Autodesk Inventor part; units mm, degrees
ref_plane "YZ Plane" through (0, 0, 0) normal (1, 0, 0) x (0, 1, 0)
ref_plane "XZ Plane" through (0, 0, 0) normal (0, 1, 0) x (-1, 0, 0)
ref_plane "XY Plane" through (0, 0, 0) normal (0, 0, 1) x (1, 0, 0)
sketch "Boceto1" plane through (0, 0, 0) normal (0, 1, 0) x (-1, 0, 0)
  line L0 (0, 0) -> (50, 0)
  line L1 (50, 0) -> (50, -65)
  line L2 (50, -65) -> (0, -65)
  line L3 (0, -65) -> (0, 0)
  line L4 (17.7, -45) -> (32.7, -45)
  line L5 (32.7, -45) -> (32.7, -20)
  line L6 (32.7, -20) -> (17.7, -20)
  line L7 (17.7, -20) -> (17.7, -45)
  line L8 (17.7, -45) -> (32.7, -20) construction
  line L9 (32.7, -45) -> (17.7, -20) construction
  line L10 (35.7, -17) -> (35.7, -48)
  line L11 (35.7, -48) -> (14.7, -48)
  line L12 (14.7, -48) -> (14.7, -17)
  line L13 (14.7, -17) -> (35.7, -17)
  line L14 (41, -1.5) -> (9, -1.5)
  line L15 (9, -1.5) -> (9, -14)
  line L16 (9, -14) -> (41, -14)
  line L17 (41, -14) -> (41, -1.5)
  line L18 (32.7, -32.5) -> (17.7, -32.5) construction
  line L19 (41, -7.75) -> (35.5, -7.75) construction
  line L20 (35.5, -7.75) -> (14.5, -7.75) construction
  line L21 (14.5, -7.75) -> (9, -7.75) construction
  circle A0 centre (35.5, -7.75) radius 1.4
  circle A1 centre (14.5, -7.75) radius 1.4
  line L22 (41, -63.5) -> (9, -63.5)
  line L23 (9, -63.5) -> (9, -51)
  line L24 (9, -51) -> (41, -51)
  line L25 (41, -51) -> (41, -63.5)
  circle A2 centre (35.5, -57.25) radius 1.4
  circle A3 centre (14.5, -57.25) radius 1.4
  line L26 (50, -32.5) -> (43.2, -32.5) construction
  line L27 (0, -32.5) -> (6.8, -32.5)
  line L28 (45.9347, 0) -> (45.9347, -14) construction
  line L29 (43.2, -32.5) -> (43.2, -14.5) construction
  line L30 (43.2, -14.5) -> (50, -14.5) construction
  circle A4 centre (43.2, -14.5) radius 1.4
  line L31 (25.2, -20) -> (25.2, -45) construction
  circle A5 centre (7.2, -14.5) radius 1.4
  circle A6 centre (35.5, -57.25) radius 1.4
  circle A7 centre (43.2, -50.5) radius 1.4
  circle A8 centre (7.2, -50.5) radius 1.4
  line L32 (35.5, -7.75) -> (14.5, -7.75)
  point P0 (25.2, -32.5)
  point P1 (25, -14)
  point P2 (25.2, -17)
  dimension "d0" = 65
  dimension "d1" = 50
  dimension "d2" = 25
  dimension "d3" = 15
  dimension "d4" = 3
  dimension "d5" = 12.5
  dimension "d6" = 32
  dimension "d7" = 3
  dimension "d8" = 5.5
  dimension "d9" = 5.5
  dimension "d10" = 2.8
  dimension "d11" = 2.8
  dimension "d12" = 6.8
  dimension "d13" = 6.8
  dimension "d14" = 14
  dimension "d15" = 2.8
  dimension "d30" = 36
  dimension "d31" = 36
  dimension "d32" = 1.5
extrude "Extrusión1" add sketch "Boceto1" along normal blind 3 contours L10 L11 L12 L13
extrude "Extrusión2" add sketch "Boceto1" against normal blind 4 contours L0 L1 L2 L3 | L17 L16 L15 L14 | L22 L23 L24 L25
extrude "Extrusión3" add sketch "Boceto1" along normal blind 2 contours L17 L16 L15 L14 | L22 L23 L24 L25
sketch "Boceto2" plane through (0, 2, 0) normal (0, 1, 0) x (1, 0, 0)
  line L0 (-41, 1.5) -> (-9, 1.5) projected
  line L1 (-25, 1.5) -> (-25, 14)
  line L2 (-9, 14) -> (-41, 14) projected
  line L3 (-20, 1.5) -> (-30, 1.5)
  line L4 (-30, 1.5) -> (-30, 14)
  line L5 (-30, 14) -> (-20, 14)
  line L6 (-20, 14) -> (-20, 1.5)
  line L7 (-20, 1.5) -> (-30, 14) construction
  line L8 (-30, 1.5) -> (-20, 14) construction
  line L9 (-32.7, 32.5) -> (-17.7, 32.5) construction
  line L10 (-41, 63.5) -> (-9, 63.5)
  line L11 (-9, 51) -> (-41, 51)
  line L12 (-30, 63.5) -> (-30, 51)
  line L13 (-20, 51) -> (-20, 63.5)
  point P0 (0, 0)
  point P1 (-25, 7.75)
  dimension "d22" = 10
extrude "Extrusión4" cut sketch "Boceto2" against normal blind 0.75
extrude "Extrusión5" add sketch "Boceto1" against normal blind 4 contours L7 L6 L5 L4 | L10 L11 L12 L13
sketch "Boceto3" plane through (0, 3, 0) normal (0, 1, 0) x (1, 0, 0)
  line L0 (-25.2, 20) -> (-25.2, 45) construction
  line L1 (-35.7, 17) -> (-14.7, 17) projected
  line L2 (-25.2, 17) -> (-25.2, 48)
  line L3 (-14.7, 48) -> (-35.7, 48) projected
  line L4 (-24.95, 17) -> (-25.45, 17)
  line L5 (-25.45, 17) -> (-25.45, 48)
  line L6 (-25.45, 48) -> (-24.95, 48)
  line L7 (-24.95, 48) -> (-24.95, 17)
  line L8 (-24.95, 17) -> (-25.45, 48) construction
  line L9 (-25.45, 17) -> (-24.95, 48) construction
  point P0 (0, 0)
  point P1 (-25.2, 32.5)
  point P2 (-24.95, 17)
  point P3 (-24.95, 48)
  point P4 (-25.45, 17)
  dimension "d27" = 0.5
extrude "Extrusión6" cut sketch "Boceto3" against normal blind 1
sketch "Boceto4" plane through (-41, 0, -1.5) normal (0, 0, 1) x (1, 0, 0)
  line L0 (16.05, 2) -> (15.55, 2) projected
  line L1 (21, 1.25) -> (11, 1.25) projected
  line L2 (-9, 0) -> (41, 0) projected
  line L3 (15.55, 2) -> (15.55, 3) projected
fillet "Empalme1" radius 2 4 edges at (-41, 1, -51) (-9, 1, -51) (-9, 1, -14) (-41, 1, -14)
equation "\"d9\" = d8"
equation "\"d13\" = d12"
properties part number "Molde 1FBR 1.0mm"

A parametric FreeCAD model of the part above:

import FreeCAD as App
import Part
import Sketcher
Q = App.Units.Quantity


def edges_at(feature, points):
    """Names of the edges that pass closest to the given points."""
    edges = feature.Shape.Edges
    near = lambda p: min(range(len(edges)), key=lambda i: edges[i].distToShape(Part.Vertex(*p))[0])
    return sorted({f"Edge{near(p) + 1}" for p in points})

doc = App.newDocument("Part")
body = doc.addObject("PartDesign::Body", "Body")
body.AllowCompound = True

sketch1 = body.newObject("Sketcher::SketchObject", "Sketch")
sketch1.AttachmentSupport = (doc.getObject("XZ_Plane"), [""])
sketch1.MapMode = "FlatFace"
sketch1.addGeometry([
    Part.LineSegment(App.Vector(-35.7, -48, 0), App.Vector(-35.7, -17, 0)),
    Part.LineSegment(App.Vector(-35.7, -17, 0), App.Vector(-14.7, -17, 0)),
    Part.LineSegment(App.Vector(-14.7, -17, 0), App.Vector(-14.7, -48, 0)),
    Part.LineSegment(App.Vector(-14.7, -48, 0), App.Vector(-35.7, -48, 0)),
    Part.LineSegment(App.Vector(-32.7, -45, 0), App.Vector(-17.7, -45, 0)),
    Part.LineSegment(App.Vector(-17.7, -45, 0), App.Vector(-17.7, -20, 0)),
    Part.LineSegment(App.Vector(-17.7, -20, 0), App.Vector(-32.7, -20, 0)),
    Part.LineSegment(App.Vector(-32.7, -20, 0), App.Vector(-32.7, -45, 0)),
], False)
sketch1.addConstraint([
    Sketcher.Constraint("Coincident", 0, 2, 1, 1),
    Sketcher.Constraint("Coincident", 1, 2, 2, 1),
    Sketcher.Constraint("Coincident", 2, 2, 3, 1),
    Sketcher.Constraint("Coincident", 3, 2, 0, 1),
    Sketcher.Constraint("Coincident", 4, 2, 5, 1),
    Sketcher.Constraint("Coincident", 5, 2, 6, 1),
    Sketcher.Constraint("Coincident", 6, 2, 7, 1),
    Sketcher.Constraint("Coincident", 7, 2, 4, 1),
    Sketcher.Constraint("Vertical", 0),
    Sketcher.Constraint("Horizontal", 1),
    Sketcher.Constraint("Vertical", 2),
    Sketcher.Constraint("Horizontal", 3),
    Sketcher.Constraint("Horizontal", 4),
    Sketcher.Constraint("Vertical", 5),
    Sketcher.Constraint("Horizontal", 6),
    Sketcher.Constraint("Vertical", 7),
    Sketcher.Constraint("DistanceX", 4, 1, 4, 2, Q("15 mm")),
    Sketcher.Constraint("DistanceY", 5, 1, 5, 2, Q("25 mm")),
    Sketcher.Constraint("DistanceX", 4, 2, 2, 2, Q("3 mm")),
    Sketcher.Constraint("DistanceY", 2, 2, 4, 2, Q("3 mm")),
    Sketcher.Constraint("DistanceY", 5, 2, 1, 2, Q("3 mm")),
    Sketcher.Constraint("DistanceX", 0, 2, 6, 2, Q("3 mm")),
    Sketcher.Constraint("DistanceY", 0, 2, -1, 1, Q("17 mm")),
    Sketcher.Constraint("DistanceX", 0, 2, -1, 1, Q("35.7 mm")),
])
pad1 = body.newObject("PartDesign::Pad", "Pad")
pad1.Profile = sketch1
pad1.Length = 3
pad1.Reversed = True

sketch2 = body.newObject("Sketcher::SketchObject", "Sketch001")
sketch2.AttachmentSupport = (doc.getObject("XZ_Plane"), [""])
sketch2.MapMode = "FlatFace"
sketch2.addGeometry([
    Part.LineSegment(App.Vector(-50, 0, 0), App.Vector(0, 0, 0)),
    Part.LineSegment(App.Vector(0, 0, 0), App.Vector(0, -65, 0)),
    Part.LineSegment(App.Vector(0, -65, 0), App.Vector(-50, -65, 0)),
    Part.LineSegment(App.Vector(-50, -65, 0), App.Vector(-50, 0, 0)),
    Part.Circle(App.Vector(-7.2, -50.5, 0), App.Vector(0, 0, 1), 1.4),
    Part.Circle(App.Vector(-43.2, -50.5, 0), App.Vector(0, 0, 1), 1.4),
    Part.Circle(App.Vector(-7.2, -14.5, 0), App.Vector(0, 0, 1), 1.4),
    Part.LineSegment(App.Vector(-14.7, -17, 0), App.Vector(-35.7, -17, 0)),
    Part.LineSegment(App.Vector(-35.7, -17, 0), App.Vector(-35.7, -48, 0)),
    Part.LineSegment(App.Vector(-35.7, -48, 0), App.Vector(-14.7, -48, 0)),
    Part.LineSegment(App.Vector(-14.7, -48, 0), App.Vector(-14.7, -17, 0)),
    Part.Circle(App.Vector(-43.2, -14.5, 0), App.Vector(0, 0, 1), 1.4),
    Part.Circle(App.Vector(-14.5, -57.25, 0), App.Vector(0, 0, 1), 1.4),
    Part.Circle(App.Vector(-35.5, -57.25, 0), App.Vector(0, 0, 1), 1.4),
    Part.Circle(App.Vector(-14.5, -7.75, 0), App.Vector(0, 0, 1), 1.4),
    Part.Circle(App.Vector(-35.5, -7.75, 0), App.Vector(0, 0, 1), 1.4),
], False)
sketch2.addConstraint([
    Sketcher.Constraint("Coincident", 0, 2, 1, 1),
    Sketcher.Constraint("Coincident", 1, 2, 2, 1),
    Sketcher.Constraint("Coincident", 2, 2, 3, 1),
    Sketcher.Constraint("Coincident", 3, 2, 0, 1),
    Sketcher.Constraint("Coincident", 7, 2, 8, 1),
    Sketcher.Constraint("Coincident", 8, 2, 9, 1),
    Sketcher.Constraint("Coincident", 9, 2, 10, 1),
    Sketcher.Constraint("Coincident", 10, 2, 7, 1),
    Sketcher.Constraint("Horizontal", 0),
    Sketcher.Constraint("Vertical", 1),
    Sketcher.Constraint("Horizontal", 2),
    Sketcher.Constraint("Vertical", 3),
    Sketcher.Constraint("Horizontal", 7),
    Sketcher.Constraint("Vertical", 8),
    Sketcher.Constraint("Horizontal", 9),
    Sketcher.Constraint("Vertical", 10),
    Sketcher.Constraint("Coincident", 0, 2, -1, 1),
    Sketcher.Constraint("Equal", 4, 5),
    Sketcher.Constraint("Equal", 5, 6),
    Sketcher.Constraint("Equal", 6, 11),
    Sketcher.Constraint("Equal", 11, 12),
    Sketcher.Constraint("Equal", 12, 13),
    Sketcher.Constraint("Equal", 13, 14),
    Sketcher.Constraint("Equal", 14, 15),
    Sketcher.Constraint("Horizontal", 4, 3, 5, 3),
    Sketcher.Constraint("Horizontal", 6, 3, 11, 3),
    Sketcher.Constraint("Horizontal", 12, 3, 13, 3),
    Sketcher.Constraint("Horizontal", 14, 3, 15, 3),
    Sketcher.Constraint("Vertical", 4, 3, 6, 3),
    Sketcher.Constraint("Vertical", 5, 3, 11, 3),
    Sketcher.Constraint("Vertical", 12, 3, 14, 3),
    Sketcher.Constraint("Vertical", 13, 3, 15, 3),
    Sketcher.Constraint("Diameter", 4, Q("2.8 mm")),
    Sketcher.Constraint("DistanceX", 0, 1, 0, 2, Q("50 mm")),
    Sketcher.Constraint("DistanceY", 1, 2, 1, 1, Q("65 mm")),
    Sketcher.Constraint("DistanceX", 5, 3, 4, 3, Q("36 mm")),
    Sketcher.Constraint("DistanceY", 4, 3, 6, 3, Q("36 mm")),
    Sketcher.Constraint("DistanceX", 2, 2, 5, 3, Q("6.8 mm")),
    Sketcher.Constraint("DistanceX", 7, 2, 7, 1, Q("21 mm")),
    Sketcher.Constraint("DistanceY", 8, 2, 8, 1, Q("31 mm")),
    Sketcher.Constraint("DistanceY", 7, 2, -1, 1, Q("17 mm")),
    Sketcher.Constraint("DistanceX", 13, 3, 12, 3, Q("21 mm")),
    Sketcher.Constraint("DistanceY", 4, 3, -1, 1, Q("50.5 mm")),
    Sketcher.Constraint("DistanceX", 12, 3, -1, 1, Q("14.5 mm")),
    Sketcher.Constraint("DistanceX", 7, 2, -1, 1, Q("35.7 mm")),
    Sketcher.Constraint("DistanceY", 12, 3, 14, 3, Q("49.5 mm")),
    Sketcher.Constraint("DistanceY", 12, 3, -1, 1, Q("57.25 mm")),
])
pad2 = body.newObject("PartDesign::Pad", "Pad001")
pad2.Profile = sketch2
pad2.Length = 4

sketch3 = body.newObject("Sketcher::SketchObject", "Sketch002")
sketch3.AttachmentSupport = (doc.getObject("XZ_Plane"), [""])
sketch3.MapMode = "FlatFace"
sketch3.addGeometry([
    Part.LineSegment(App.Vector(-41, -14, 0), App.Vector(-41, -1.5, 0)),
    Part.LineSegment(App.Vector(-41, -1.5, 0), App.Vector(-9, -1.5, 0)),
    Part.LineSegment(App.Vector(-9, -1.5, 0), App.Vector(-9, -14, 0)),
    Part.LineSegment(App.Vector(-9, -14, 0), App.Vector(-41, -14, 0)),
    Part.Circle(App.Vector(-14.5, -7.75, 0), App.Vector(0, 0, 1), 1.4),
    Part.Circle(App.Vector(-35.5, -7.75, 0), App.Vector(0, 0, 1), 1.4),
    Part.LineSegment(App.Vector(-9, -63.5, 0), App.Vector(-41, -63.5, 0)),
    Part.LineSegment(App.Vector(-41, -63.5, 0), App.Vector(-41, -51, 0)),
    Part.LineSegment(App.Vector(-41, -51, 0), App.Vector(-9, -51, 0)),
    Part.LineSegment(App.Vector(-9, -51, 0), App.Vector(-9, -63.5, 0)),
    Part.Circle(App.Vector(-14.5, -57.25, 0), App.Vector(0, 0, 1), 1.4),
    Part.Circle(App.Vector(-35.5, -57.25, 0), App.Vector(0, 0, 1), 1.4),
], False)
sketch3.addConstraint([
    Sketcher.Constraint("Coincident", 0, 2, 1, 1),
    Sketcher.Constraint("Coincident", 1, 2, 2, 1),
    Sketcher.Constraint("Coincident", 2, 2, 3, 1),
    Sketcher.Constraint("Coincident", 3, 2, 0, 1),
    Sketcher.Constraint("Coincident", 6, 2, 7, 1),
    Sketcher.Constraint("Coincident", 7, 2, 8, 1),
    Sketcher.Constraint("Coincident", 8, 2, 9, 1),
    Sketcher.Constraint("Coincident", 9, 2, 6, 1),
    Sketcher.Constraint("Vertical", 0),
    Sketcher.Constraint("Horizontal", 1),
    Sketcher.Constraint("Vertical", 2),
    Sketcher.Constraint("Horizontal", 3),
    Sketcher.Constraint("Horizontal", 6),
    Sketcher.Constraint("Vertical", 7),
    Sketcher.Constraint("Horizontal", 8),
    Sketcher.Constraint("Vertical", 9),
    Sketcher.Constraint("Equal", 4, 5),
    Sketcher.Constraint("Equal", 5, 10),
    Sketcher.Constraint("Equal", 10, 11),
    Sketcher.Constraint("Horizontal", 4, 3, 5, 3),
    Sketcher.Constraint("Horizontal", 10, 3, 11, 3),
    Sketcher.Constraint("Vertical", 4, 3, 10, 3),
    Sketcher.Constraint("Vertical", 5, 3, 11, 3),
    Sketcher.Constraint("Vertical", 3, 2, 6, 2),
    Sketcher.Constraint("Vertical", 2, 2, 8, 2),
    Sketcher.Constraint("Equal", 2, 7),
    Sketcher.Constraint("Diameter", 4, Q("2.8 mm")),
    Sketcher.Constraint("DistanceX", 1, 1, 1, 2, Q("32 mm")),
    Sketcher.Constraint("DistanceY", 0, 1, 0, 2, Q("12.5 mm")),
    Sketcher.Constraint("DistanceY", 2, 2, -1, 1, Q("14 mm")),
    Sketcher.Constraint("DistanceX", 0, 2, 5, 3, Q("5.5 mm")),
    Sketcher.Constraint("DistanceX", 4, 3, 1, 2, Q("5.5 mm")),
    Sketcher.Constraint("DistanceX", 0, 2, -1, 1, Q("41 mm")),
    Sketcher.Constraint("DistanceY", 7, 2, -1, 1, Q("51 mm")),
    Sketcher.Constraint("DistanceY", 10, 3, 4, 3, Q("49.5 mm")),
    Sketcher.Constraint("DistanceY", 4, 3, -1, 1, Q("7.75 mm")),
])
pad3 = body.newObject("PartDesign::Pad", "Pad002")
pad3.Profile = sketch3
pad3.Length = 2
pad3.Reversed = True

sketch4 = body.newObject("Sketcher::SketchObject", "Sketch003")
sketch4.AttachmentSupport = (doc.getObject("XZ_Plane"), [""])
sketch4.MapMode = "FlatFace"
sketch4.AttachmentOffset = App.Placement(App.Vector(0, 0, -2), App.Rotation())
sketch4.addGeometry([
    Part.LineSegment(App.Vector(-30, -14, 0), App.Vector(-30, -1.5, 0)),
    Part.LineSegment(App.Vector(-30, -1.5, 0), App.Vector(-20, -1.5, 0)),
    Part.LineSegment(App.Vector(-20, -1.5, 0), App.Vector(-20, -14, 0)),
    Part.LineSegment(App.Vector(-20, -14, 0), App.Vector(-30, -14, 0)),
    Part.LineSegment(App.Vector(-20, -63.5, 0), App.Vector(-30, -63.5, 0)),
    Part.LineSegment(App.Vector(-30, -63.5, 0), App.Vector(-30, -51, 0)),
    Part.LineSegment(App.Vector(-30, -51, 0), App.Vector(-20, -51, 0)),
    Part.LineSegment(App.Vector(-20, -51, 0), App.Vector(-20, -63.5, 0)),
], False)
sketch4.addConstraint([
    Sketcher.Constraint("Coincident", 0, 2, 1, 1),
    Sketcher.Constraint("Coincident", 1, 2, 2, 1),
    Sketcher.Constraint("Coincident", 2, 2, 3, 1),
    Sketcher.Constraint("Coincident", 3, 2, 0, 1),
    Sketcher.Constraint("Coincident", 4, 2, 5, 1),
    Sketcher.Constraint("Coincident", 5, 2, 6, 1),
    Sketcher.Constraint("Coincident", 6, 2, 7, 1),
    Sketcher.Constraint("Coincident", 7, 2, 4, 1),
    Sketcher.Constraint("Vertical", 0),
    Sketcher.Constraint("Horizontal", 1),
    Sketcher.Constraint("Vertical", 2),
    Sketcher.Constraint("Horizontal", 3),
    Sketcher.Constraint("Horizontal", 4),
    Sketcher.Constraint("Vertical", 5),
    Sketcher.Constraint("Horizontal", 6),
    Sketcher.Constraint("Vertical", 7),
    Sketcher.Constraint("Vertical", 3, 2, 4, 2),
    Sketcher.Constraint("Vertical", 2, 2, 6, 2),
    Sketcher.Constraint("Equal", 2, 5),
    Sketcher.Constraint("DistanceX", 1, 1, 1, 2, Q("10 mm")),
    Sketcher.Constraint("DistanceY", 0, 1, 0, 2, Q("12.5 mm")),
    Sketcher.Constraint("DistanceX", 0, 2, -1, 1, Q("30 mm")),
    Sketcher.Constraint("DistanceY", 2, 2, -1, 1, Q("14 mm")),
    Sketcher.Constraint("DistanceY", 5, 2, -1, 1, Q("51 mm")),
])
pocket1 = body.newObject("PartDesign::Pocket", "Pocket")
pocket1.Profile = sketch4
pocket1.Length = 0.75
pocket1.Reversed = True

sketch5 = body.newObject("Sketcher::SketchObject", "Sketch004")
sketch5.AttachmentSupport = (doc.getObject("XZ_Plane"), [""])
sketch5.MapMode = "FlatFace"
sketch5.addGeometry([
    Part.LineSegment(App.Vector(-35.7, -48, 0), App.Vector(-35.7, -17, 0)),
    Part.LineSegment(App.Vector(-35.7, -17, 0), App.Vector(-14.7, -17, 0)),
    Part.LineSegment(App.Vector(-14.7, -17, 0), App.Vector(-14.7, -48, 0)),
    Part.LineSegment(App.Vector(-14.7, -48, 0), App.Vector(-35.7, -48, 0)),
], False)
sketch5.addConstraint([
    Sketcher.Constraint("Coincident", 0, 2, 1, 1),
    Sketcher.Constraint("Coincident", 1, 2, 2, 1),
    Sketcher.Constraint("Coincident", 2, 2, 3, 1),
    Sketcher.Constraint("Coincident", 3, 2, 0, 1),
    Sketcher.Constraint("Vertical", 0),
    Sketcher.Constraint("Horizontal", 1),
    Sketcher.Constraint("Vertical", 2),
    Sketcher.Constraint("Horizontal", 3),
    Sketcher.Constraint("DistanceX", 1, 1, 1, 2, Q("21 mm")),
    Sketcher.Constraint("DistanceY", 0, 1, 0, 2, Q("31 mm")),
    Sketcher.Constraint("DistanceY", 0, 2, -1, 1, Q("17 mm")),
    Sketcher.Constraint("DistanceX", 0, 2, -1, 1, Q("35.7 mm")),
])
pad4 = body.newObject("PartDesign::Pad", "Pad003")
pad4.Profile = sketch5
pad4.Length = 4

sketch6 = body.newObject("Sketcher::SketchObject", "Sketch005")
sketch6.AttachmentSupport = (doc.getObject("XZ_Plane"), [""])
sketch6.MapMode = "FlatFace"
sketch6.AttachmentOffset = App.Placement(App.Vector(0, 0, -3), App.Rotation())
sketch6.addGeometry([
    Part.LineSegment(App.Vector(-25.45, -48, 0), App.Vector(-25.45, -17, 0)),
    Part.LineSegment(App.Vector(-25.45, -17, 0), App.Vector(-24.95, -17, 0)),
    Part.LineSegment(App.Vector(-24.95, -17, 0), App.Vector(-24.95, -48, 0)),
    Part.LineSegment(App.Vector(-24.95, -48, 0), App.Vector(-25.45, -48, 0)),
], False)
sketch6.addConstraint([
    Sketcher.Constraint("Coincident", 0, 2, 1, 1),
    Sketcher.Constraint("Coincident", 1, 2, 2, 1),
    Sketcher.Constraint("Coincident", 2, 2, 3, 1),
    Sketcher.Constraint("Coincident", 3, 2, 0, 1),
    Sketcher.Constraint("Vertical", 0),
    Sketcher.Constraint("Horizontal", 1),
    Sketcher.Constraint("Vertical", 2),
    Sketcher.Constraint("Horizontal", 3),
    Sketcher.Constraint("DistanceX", 1, 1, 1, 2, Q("0.5 mm")),
    Sketcher.Constraint("DistanceY", 0, 1, 0, 2, Q("31 mm")),
    Sketcher.Constraint("DistanceY", 0, 2, -1, 1, Q("17 mm")),
    Sketcher.Constraint("DistanceX", 0, 2, -1, 1, Q("25.45 mm")),
])
pocket2 = body.newObject("PartDesign::Pocket", "Pocket001")
pocket2.Profile = sketch6
pocket2.Length = 1
pocket2.Reversed = True
doc.recompute()

fillet = body.newObject("PartDesign::Fillet", "Fillet")
fillet.Base = (pocket2, edges_at(pocket2, [
    (-41, 1, -51),
    (-9, 1, -51),
    (-9, 1, -14),
    (-41, 1, -14),
]))
fillet.Radius = 2

doc.recompute()
